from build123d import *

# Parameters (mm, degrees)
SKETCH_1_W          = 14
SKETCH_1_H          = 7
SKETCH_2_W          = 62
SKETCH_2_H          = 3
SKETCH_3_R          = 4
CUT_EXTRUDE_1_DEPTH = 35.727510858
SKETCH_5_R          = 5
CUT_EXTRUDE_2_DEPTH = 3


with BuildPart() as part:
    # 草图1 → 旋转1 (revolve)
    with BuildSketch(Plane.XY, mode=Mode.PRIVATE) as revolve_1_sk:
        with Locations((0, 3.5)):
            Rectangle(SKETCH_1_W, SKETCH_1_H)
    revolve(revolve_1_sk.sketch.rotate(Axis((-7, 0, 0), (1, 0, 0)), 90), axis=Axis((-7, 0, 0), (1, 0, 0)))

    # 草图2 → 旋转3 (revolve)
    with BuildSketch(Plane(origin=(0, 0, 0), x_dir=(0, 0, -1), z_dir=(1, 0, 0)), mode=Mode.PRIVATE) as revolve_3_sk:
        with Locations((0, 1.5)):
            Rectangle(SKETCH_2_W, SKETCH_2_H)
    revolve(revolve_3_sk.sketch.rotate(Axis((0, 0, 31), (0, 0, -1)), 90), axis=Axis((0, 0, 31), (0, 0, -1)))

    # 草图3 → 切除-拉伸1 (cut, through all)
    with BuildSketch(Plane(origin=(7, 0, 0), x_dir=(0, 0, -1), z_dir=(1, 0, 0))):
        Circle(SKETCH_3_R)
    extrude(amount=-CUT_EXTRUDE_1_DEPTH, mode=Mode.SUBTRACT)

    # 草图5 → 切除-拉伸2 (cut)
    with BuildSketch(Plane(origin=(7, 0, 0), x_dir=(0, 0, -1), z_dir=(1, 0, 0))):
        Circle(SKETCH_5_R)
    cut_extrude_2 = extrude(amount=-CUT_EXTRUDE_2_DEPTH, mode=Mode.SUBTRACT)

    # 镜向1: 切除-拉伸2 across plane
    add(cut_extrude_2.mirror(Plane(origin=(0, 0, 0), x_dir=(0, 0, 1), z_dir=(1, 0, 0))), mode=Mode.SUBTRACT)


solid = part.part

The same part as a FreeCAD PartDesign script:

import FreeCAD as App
import Part
import Sketcher
from FreeCAD import Vector
Q = App.Units.Quantity


def add_polygon(sketch, points):
    """Adds a closed chain of lines whose ends are joined by coincident constraints."""
    first, n = sketch.GeometryCount, len(points)
    for a, b in zip(points, points[1:] + points[:1]):
        sketch.addGeometry(Part.LineSegment(App.Vector(*a, 0), App.Vector(*b, 0)), False)
    for i in range(n):
        sketch.addConstraint(Sketcher.Constraint("Coincident", first + i, 2, first + (i + 1) % n, 1))

doc = App.newDocument("Part")
body = doc.addObject("PartDesign::Body", "Body")

# Sketch on XY plane
sketch1 = body.newObject("Sketcher::SketchObject", "Sketch")
sketch1.AttachmentSupport = (doc.getObject("XY_Plane"), [""])
sketch1.MapMode = "FlatFace"
add_polygon(sketch1, [(-7, 7), (-7, 0), (7, 0), (7, 7)])  # lines 0-3
sketch1.addConstraint(Sketcher.Constraint("Vertical", 0))
sketch1.addConstraint(Sketcher.Constraint("Horizontal", 1))
sketch1.addConstraint(Sketcher.Constraint("Vertical", 2))
sketch1.addConstraint(Sketcher.Constraint("Horizontal", 3))
sketch1.addConstraint(Sketcher.Constraint("Symmetric", 0, 2, 1, 2, -1, 1))
sketch1.addConstraint(Sketcher.Constraint("DistanceX", 1, 1, 1, 2, Q("14 mm")))
sketch1.addConstraint(Sketcher.Constraint("DistanceY", 0, 2, 0, 1, Q("7 mm")))
revolution = body.newObject("PartDesign::Revolution", "Revolution")
revolution.Profile = sketch1
revolution.ReferenceAxis = (sketch1, ["H_Axis"])
revolution.Angle = 360

# Sketch on YZ plane
sketch2 = body.newObject("Sketcher::SketchObject", "Sketch001")
sketch2.AttachmentSupport = (doc.getObject("YZ_Plane"), [""])
sketch2.MapMode = "FlatFace"
add_polygon(sketch2, [(3, 31), (0, 31), (0, -31), (3, -31)])  # lines 0-3
sketch2.addConstraint(Sketcher.Constraint("Horizontal", 0))
sketch2.addConstraint(Sketcher.Constraint("Vertical", 1))
sketch2.addConstraint(Sketcher.Constraint("Horizontal", 2))
sketch2.addConstraint(Sketcher.Constraint("Vertical", 3))
sketch2.addConstraint(Sketcher.Constraint("Symmetric", 0, 2, 1, 2, -1, 1))
sketch2.addConstraint(Sketcher.Constraint("DistanceX", 0, 2, 0, 1, Q("3 mm")))
sketch2.addConstraint(Sketcher.Constraint("DistanceY", 1, 2, 1, 1, Q("62 mm")))
revolution2 = body.newObject("PartDesign::Revolution", "Revolution001")
revolution2.Profile = sketch2
revolution2.ReferenceAxis = (sketch2, ["V_Axis"])
revolution2.Angle = 360

# Sketch on YZ plane
sketch3 = body.newObject("Sketcher::SketchObject", "Sketch002")
sketch3.AttachmentSupport = (doc.getObject("YZ_Plane"), [""])
sketch3.MapMode = "FlatFace"
sketch3.AttachmentOffset = App.Placement(Vector(0, 0, 7), App.Rotation())
sketch3.addGeometry(Part.Circle(Vector(0, 0, 0), Vector(0, 0, 1), 4), False)
sketch3.addConstraint(Sketcher.Constraint("Coincident", 0, 3, -1, 1))
sketch3.addConstraint(Sketcher.Constraint("Diameter", 0, Q("8 mm")))
pocket1 = body.newObject("PartDesign::Pocket", "Pocket")
pocket1.Profile = sketch3
pocket1.Type = "ThroughAll"

# Sketch on YZ plane
sketch4 = body.newObject("Sketcher::SketchObject", "Sketch003")
sketch4.AttachmentSupport = (doc.getObject("YZ_Plane"), [""])
sketch4.MapMode = "FlatFace"
sketch4.AttachmentOffset = App.Placement(Vector(0, 0, 7), App.Rotation())
sketch4.addGeometry(Part.Circle(Vector(0, 0, 0), Vector(0, 0, 1), 5), False)
sketch4.addConstraint(Sketcher.Constraint("Coincident", 0, 3, -1, 1))
sketch4.addConstraint(Sketcher.Constraint("Diameter", 0, Q("10 mm")))
pocket2 = body.newObject("PartDesign::Pocket", "Pocket001")
pocket2.Profile = sketch4
pocket2.Length = 3
doc.recompute()

mirrored = body.newObject("PartDesign::Mirrored", "Mirrored")
mirrored.Originals = [pocket2]
mirrored.MirrorPlane = (doc.getObject("YZ_Plane"), [""])
body.Tip = mirrored

doc.recompute()
